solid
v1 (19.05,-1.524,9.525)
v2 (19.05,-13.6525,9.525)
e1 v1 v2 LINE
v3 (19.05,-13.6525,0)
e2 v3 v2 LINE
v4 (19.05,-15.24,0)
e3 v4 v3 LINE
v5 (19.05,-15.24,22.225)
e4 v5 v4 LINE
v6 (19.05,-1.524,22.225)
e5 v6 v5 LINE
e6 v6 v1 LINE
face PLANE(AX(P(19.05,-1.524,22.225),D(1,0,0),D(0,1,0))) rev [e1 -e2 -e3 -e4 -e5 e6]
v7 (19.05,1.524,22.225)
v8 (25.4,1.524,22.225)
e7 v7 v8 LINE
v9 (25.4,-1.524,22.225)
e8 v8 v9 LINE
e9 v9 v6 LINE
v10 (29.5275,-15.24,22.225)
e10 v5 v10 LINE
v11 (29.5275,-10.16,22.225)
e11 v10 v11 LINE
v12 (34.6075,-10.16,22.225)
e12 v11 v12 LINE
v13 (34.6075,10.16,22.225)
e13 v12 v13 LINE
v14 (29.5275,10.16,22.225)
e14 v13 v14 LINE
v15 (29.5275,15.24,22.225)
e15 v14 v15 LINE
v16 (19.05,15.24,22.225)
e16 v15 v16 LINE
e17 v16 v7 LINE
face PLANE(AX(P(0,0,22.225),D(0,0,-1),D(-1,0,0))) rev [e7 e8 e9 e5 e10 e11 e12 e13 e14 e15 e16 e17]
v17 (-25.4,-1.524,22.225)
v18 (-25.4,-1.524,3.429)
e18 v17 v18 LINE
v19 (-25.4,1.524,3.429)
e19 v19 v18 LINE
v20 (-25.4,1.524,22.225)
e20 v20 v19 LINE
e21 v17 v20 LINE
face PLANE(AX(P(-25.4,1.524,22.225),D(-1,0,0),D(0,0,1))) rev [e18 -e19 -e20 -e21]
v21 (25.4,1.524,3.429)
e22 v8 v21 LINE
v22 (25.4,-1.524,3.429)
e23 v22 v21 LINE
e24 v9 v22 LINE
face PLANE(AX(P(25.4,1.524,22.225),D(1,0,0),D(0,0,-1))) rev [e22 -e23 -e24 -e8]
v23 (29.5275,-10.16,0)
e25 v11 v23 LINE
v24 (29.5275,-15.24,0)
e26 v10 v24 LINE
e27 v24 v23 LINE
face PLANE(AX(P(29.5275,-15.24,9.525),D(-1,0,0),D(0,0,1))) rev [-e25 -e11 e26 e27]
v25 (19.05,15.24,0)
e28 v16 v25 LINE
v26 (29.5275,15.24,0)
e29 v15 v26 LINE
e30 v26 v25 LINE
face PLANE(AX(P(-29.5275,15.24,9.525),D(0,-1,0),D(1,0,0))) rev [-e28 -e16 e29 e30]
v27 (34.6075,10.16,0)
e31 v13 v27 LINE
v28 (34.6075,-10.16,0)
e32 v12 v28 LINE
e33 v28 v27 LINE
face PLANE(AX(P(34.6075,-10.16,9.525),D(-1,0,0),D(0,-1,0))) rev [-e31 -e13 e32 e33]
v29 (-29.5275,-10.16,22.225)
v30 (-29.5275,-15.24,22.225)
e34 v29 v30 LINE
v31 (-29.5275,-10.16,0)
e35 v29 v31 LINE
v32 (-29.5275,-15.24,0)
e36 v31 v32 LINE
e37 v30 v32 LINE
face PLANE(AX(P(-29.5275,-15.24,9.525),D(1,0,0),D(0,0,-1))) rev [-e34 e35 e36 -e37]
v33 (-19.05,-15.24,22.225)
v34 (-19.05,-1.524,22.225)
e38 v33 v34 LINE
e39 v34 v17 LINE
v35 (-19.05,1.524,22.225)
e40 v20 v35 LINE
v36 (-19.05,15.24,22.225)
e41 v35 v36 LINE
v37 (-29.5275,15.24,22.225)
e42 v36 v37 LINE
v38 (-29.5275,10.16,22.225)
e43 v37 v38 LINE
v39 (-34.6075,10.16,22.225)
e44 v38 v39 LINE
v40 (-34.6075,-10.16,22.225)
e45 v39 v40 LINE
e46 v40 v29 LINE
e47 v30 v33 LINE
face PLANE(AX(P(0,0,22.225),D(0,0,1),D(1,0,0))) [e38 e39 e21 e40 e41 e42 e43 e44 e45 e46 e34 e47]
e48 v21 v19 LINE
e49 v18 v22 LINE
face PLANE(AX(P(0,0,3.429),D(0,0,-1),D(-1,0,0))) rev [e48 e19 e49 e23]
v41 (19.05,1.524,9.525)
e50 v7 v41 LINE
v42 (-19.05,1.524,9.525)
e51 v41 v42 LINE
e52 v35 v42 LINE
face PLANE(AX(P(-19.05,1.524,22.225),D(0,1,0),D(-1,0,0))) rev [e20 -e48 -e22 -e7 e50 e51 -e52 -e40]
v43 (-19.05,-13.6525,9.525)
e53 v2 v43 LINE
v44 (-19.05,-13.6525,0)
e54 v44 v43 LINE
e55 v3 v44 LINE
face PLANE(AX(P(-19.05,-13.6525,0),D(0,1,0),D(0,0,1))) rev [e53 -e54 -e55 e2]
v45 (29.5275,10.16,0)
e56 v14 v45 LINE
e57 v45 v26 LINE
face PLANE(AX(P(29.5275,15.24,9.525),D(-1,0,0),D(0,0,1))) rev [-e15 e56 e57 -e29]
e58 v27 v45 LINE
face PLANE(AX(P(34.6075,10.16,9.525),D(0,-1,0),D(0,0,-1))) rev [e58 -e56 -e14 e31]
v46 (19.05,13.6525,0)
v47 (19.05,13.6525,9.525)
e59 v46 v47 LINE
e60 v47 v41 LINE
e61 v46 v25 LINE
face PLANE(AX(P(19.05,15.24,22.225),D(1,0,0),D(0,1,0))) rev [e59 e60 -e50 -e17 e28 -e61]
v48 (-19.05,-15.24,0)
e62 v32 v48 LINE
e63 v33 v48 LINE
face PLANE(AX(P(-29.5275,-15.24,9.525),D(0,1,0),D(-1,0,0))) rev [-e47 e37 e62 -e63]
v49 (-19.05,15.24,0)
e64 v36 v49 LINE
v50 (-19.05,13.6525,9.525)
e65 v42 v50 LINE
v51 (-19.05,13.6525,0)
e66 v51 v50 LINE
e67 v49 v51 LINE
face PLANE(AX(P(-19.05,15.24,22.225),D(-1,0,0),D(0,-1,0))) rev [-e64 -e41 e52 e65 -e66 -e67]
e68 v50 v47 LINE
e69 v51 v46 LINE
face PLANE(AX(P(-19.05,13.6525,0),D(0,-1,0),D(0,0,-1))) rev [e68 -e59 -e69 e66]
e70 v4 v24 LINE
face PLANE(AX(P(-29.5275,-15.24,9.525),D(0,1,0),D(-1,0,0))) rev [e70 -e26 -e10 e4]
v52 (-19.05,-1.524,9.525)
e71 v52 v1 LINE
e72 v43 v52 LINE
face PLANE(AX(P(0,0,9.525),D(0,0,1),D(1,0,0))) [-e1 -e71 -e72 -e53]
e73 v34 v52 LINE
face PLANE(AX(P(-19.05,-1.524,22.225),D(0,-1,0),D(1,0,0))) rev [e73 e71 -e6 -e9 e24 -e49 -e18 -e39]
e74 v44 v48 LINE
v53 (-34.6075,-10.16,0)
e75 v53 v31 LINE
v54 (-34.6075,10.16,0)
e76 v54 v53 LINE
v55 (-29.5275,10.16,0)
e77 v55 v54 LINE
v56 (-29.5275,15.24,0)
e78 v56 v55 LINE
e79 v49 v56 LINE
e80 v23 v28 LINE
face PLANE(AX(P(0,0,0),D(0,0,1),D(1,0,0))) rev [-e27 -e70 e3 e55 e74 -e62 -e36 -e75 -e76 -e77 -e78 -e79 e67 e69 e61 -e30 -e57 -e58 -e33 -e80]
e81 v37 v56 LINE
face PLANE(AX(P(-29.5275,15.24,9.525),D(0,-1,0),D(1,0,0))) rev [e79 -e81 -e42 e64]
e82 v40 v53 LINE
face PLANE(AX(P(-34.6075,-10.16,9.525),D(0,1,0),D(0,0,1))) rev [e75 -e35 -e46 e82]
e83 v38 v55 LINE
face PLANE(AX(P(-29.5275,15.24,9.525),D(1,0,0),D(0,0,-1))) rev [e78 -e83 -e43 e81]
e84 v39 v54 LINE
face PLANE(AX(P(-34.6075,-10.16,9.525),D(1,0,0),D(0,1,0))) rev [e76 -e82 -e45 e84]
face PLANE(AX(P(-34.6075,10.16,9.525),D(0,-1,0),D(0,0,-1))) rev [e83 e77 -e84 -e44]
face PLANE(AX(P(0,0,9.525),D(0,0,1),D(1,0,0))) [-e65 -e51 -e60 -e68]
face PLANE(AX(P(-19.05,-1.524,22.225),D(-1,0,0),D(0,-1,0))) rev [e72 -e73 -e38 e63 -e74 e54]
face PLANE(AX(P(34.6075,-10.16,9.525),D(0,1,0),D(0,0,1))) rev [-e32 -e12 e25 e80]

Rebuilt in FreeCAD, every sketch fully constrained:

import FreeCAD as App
import Part
import Sketcher
Q = App.Units.Quantity

doc = App.newDocument("Part")
params = doc.addObject("Spreadsheet::Sheet", "Params")
for row, (alias, value) in enumerate([
    ("sketch1_width", "0.2 in"),
    ("sketch1_height", "0.8 in"),
    ("sketch1_width2", "2.325 in"),
    ("pad1_length", "0.375 in"),
    ("sketch2_width", "0.2 in"),
    ("sketch2_height", "0.8 in"),
    ("sketch2_width2", "0.25 in"),
    ("sketch2_height2", "0.54 in"),
    ("pad2_length", "0.5 in"),
    ("sketch3_width", "2 in"),
    ("sketch3_height", "0.12 in"),
    ("pocket1_length", "0.24 in"),
    ("sketch4_width", "1.5 in"),
    ("sketch4_height", "0.0625 in"),
], start=1):
    params.set(f"A{row}", alias)
    params.set(f"B{row}", "=" + value)
    params.setAlias(f"B{row}", alias)

body = doc.addObject("PartDesign::Body", "Body")

sketch1 = body.newObject("Sketcher::SketchObject", "Sketch")
sketch1.AttachmentSupport = (doc.getObject("XY_Plane"), [""])
sketch1.MapMode = "FlatFace"
sketch1.addGeometry([
    Part.LineSegment(App.Vector(-30, -15, 0), App.Vector(30, -15, 0)),
    Part.LineSegment(App.Vector(30, -15, 0), App.Vector(30, -10, 0)),
    Part.LineSegment(App.Vector(30, -10, 0), App.Vector(35, -10, 0)),
    Part.LineSegment(App.Vector(35, -10, 0), App.Vector(35, 10, 0)),
    Part.LineSegment(App.Vector(35, 10, 0), App.Vector(30, 10, 0)),
    Part.LineSegment(App.Vector(30, 10, 0), App.Vector(30, 15, 0)),
    Part.LineSegment(App.Vector(30, 15, 0), App.Vector(-30, 15, 0)),
    Part.LineSegment(App.Vector(-30, 15, 0), App.Vector(-30, 10, 0)),
    Part.LineSegment(App.Vector(-30, 10, 0), App.Vector(-35, 10, 0)),
    Part.LineSegment(App.Vector(-35, 10, 0), App.Vector(-35, -10, 0)),
    Part.LineSegment(App.Vector(-35, -10, 0), App.Vector(-30, -10, 0)),
    Part.LineSegment(App.Vector(-30, -10, 0), App.Vector(-30, -15, 0)),
], False)
sketch1.addConstraint([
    Sketcher.Constraint("Coincident", 0, 2, 1, 1),
    Sketcher.Constraint("Coincident", 1, 2, 2, 1),
    Sketcher.Constraint("Coincident", 2, 2, 3, 1),
    Sketcher.Constraint("Coincident", 3, 2, 4, 1),
    Sketcher.Constraint("Coincident", 4, 2, 5, 1),
    Sketcher.Constraint("Coincident", 5, 2, 6, 1),
    Sketcher.Constraint("Coincident", 6, 2, 7, 1),
    Sketcher.Constraint("Coincident", 7, 2, 8, 1),
    Sketcher.Constraint("Coincident", 8, 2, 9, 1),
    Sketcher.Constraint("Coincident", 9, 2, 10, 1),
    Sketcher.Constraint("Coincident", 10, 2, 11, 1),
    Sketcher.Constraint("Coincident", 11, 2, 0, 1),
    Sketcher.Constraint("Horizontal", 0),
    Sketcher.Constraint("Vertical", 1),
    Sketcher.Constraint("Horizontal", 2),
    Sketcher.Constraint("Vertical", 3),
    Sketcher.Constraint("Horizontal", 4),
    Sketcher.Constraint("Vertical", 5),
    Sketcher.Constraint("Horizontal", 6),
    Sketcher.Constraint("Vertical", 7),
    Sketcher.Constraint("Horizontal", 8),
    Sketcher.Constraint("Vertical", 9),
    Sketcher.Constraint("Horizontal", 10),
    Sketcher.Constraint("Vertical", 11),
    Sketcher.Constraint("Symmetric", 0, 2, 6, 2, -1, 1),
    Sketcher.Constraint("Symmetric", 2, 2, 8, 2, -1, 1),
    Sketcher.Constraint("Symmetric", 4, 2, 10, 2, -1, 1),
    Sketcher.Constraint("Symmetric", 4, 2, 7, 2, -2),
    Sketcher.Constraint("Equal", 10, 1),
    Sketcher.Constraint("DistanceX", 2, 1, 2, 2, Q("0.2 in")),
    Sketcher.Constraint("DistanceY", 3, 1, 3, 2, Q("0.8 in")),
    Sketcher.Constraint("DistanceX", 0, 1, 0, 2, Q("2.325 in")),
])
sketch1.setExpression("Constraints[29]", "Params.sketch1_width")
sketch1.setExpression("Constraints[30]", "Params.sketch1_height")
sketch1.setExpression("Constraints[31]", "Params.sketch1_width2")
pad1 = body.newObject("PartDesign::Pad", "Pad")
pad1.Profile = sketch1
pad1.setExpression("Length", "Params.pad1_length")

sketch2 = body.newObject("Sketcher::SketchObject", "Sketch001")
sketch2.AttachmentSupport = (doc.getObject("XY_Plane"), [""])
sketch2.MapMode = "FlatFace"
sketch2.AttachmentOffset = App.Placement(App.Vector(0, 0, 0.375 * 25.4), App.Rotation())
sketch2.addGeometry([
    Part.LineSegment(App.Vector(-19.1, 15.2, 0), App.Vector(-29.5, 15.2, 0)),
    Part.LineSegment(App.Vector(-29.5, 15.2, 0), App.Vector(-29.5, 10.2, 0)),
    Part.LineSegment(App.Vector(-29.5, 10.2, 0), App.Vector(-34.6, 10.2, 0)),
    Part.LineSegment(App.Vector(-34.6, 10.2, 0), App.Vector(-34.6, -10.2, 0)),
    Part.LineSegment(App.Vector(-34.6, -10.2, 0), App.Vector(-29.5, -10.2, 0)),
    Part.LineSegment(App.Vector(-29.5, -10.2, 0), App.Vector(-29.5, -15.2, 0)),
    Part.LineSegment(App.Vector(-29.5, -15.2, 0), App.Vector(-19.1, -15.2, 0)),
    Part.LineSegment(App.Vector(-19.1, -15.2, 0), App.Vector(-19.1, -1.5, 0)),
    Part.LineSegment(App.Vector(-19.1, -1.5, 0), App.Vector(-25.4, -1.5, 0)),
    Part.LineSegment(App.Vector(-25.4, -1.5, 0), App.Vector(-25.4, 1.5, 0)),
    Part.LineSegment(App.Vector(-25.4, 1.5, 0), App.Vector(-19.1, 1.5, 0)),
    Part.LineSegment(App.Vector(-19.1, 1.5, 0), App.Vector(-19.1, 15.2, 0)),
    Part.LineSegment(App.Vector(19.1, -1.5, 0), App.Vector(19.1, -15.2, 0)),
    Part.LineSegment(App.Vector(19.1, -15.2, 0), App.Vector(29.5, -15.2, 0)),
    Part.LineSegment(App.Vector(29.5, -15.2, 0), App.Vector(29.5, -10.2, 0)),
    Part.LineSegment(App.Vector(29.5, -10.2, 0), App.Vector(34.6, -10.2, 0)),
    Part.LineSegment(App.Vector(34.6, -10.2, 0), App.Vector(34.6, 10.2, 0)),
    Part.LineSegment(App.Vector(34.6, 10.2, 0), App.Vector(29.5, 10.2, 0)),
    Part.LineSegment(App.Vector(29.5, 10.2, 0), App.Vector(29.5, 15.2, 0)),
    Part.LineSegment(App.Vector(29.5, 15.2, 0), App.Vector(19.1, 15.2, 0)),
    Part.LineSegment(App.Vector(19.1, 15.2, 0), App.Vector(19.1, 1.5, 0)),
    Part.LineSegment(App.Vector(19.1, 1.5, 0), App.Vector(25.4, 1.5, 0)),
    Part.LineSegment(App.Vector(25.4, 1.5, 0), App.Vector(25.4, -1.5, 0)),
    Part.LineSegment(App.Vector(25.4, -1.5, 0), App.Vector(19.1, -1.5, 0)),
], False)
sketch2.addConstraint([
    Sketcher.Constraint("Coincident", 0, 2, 1, 1),
    Sketcher.Constraint("Coincident", 1, 2, 2, 1),
    Sketcher.Constraint("Coincident", 2, 2, 3, 1),
    Sketcher.Constraint("Coincident", 3, 2, 4, 1),
    Sketcher.Constraint("Coincident", 4, 2, 5, 1),
    Sketcher.Constraint("Coincident", 5, 2, 6, 1),
    Sketcher.Constraint("Coincident", 6, 2, 7, 1),
    Sketcher.Constraint("Coincident", 7, 2, 8, 1),
    Sketcher.Constraint("Coincident", 8, 2, 9, 1),
    Sketcher.Constraint("Coincident", 9, 2, 10, 1),
    Sketcher.Constraint("Coincident", 10, 2, 11, 1),
    Sketcher.Constraint("Coincident", 11, 2, 0, 1),
    Sketcher.Constraint("Coincident", 12, 2, 13, 1),
    Sketcher.Constraint("Coincident", 13, 2, 14, 1),
    Sketcher.Constraint("Coincident", 14, 2, 15, 1),
    Sketcher.Constraint("Coincident", 15, 2, 16, 1),
    Sketcher.Constraint("Coincident", 16, 2, 17, 1),
    Sketcher.Constraint("Coincident", 17, 2, 18, 1),
    Sketcher.Constraint("Coincident", 18, 2, 19, 1),
    Sketcher.Constraint("Coincident", 19, 2, 20, 1),
    Sketcher.Constraint("Coincident", 20, 2, 21, 1),
    Sketcher.Constraint("Coincident", 21, 2, 22, 1),
    Sketcher.Constraint("Coincident", 22, 2, 23, 1),
    Sketcher.Constraint("Coincident", 23, 2, 12, 1),
    Sketcher.Constraint("Horizontal", 0),
    Sketcher.Constraint("Vertical", 1),
    Sketcher.Constraint("Horizontal", 2),
    Sketcher.Constraint("Vertical", 3),
    Sketcher.Constraint("Horizontal", 4),
    Sketcher.Constraint("Vertical", 5),
    Sketcher.Constraint("Horizontal", 6),
    Sketcher.Constraint("Vertical", 7),
    Sketcher.Constraint("Horizontal", 8),
    Sketcher.Constraint("Vertical", 9),
    Sketcher.Constraint("Horizontal", 10),
    Sketcher.Constraint("Vertical", 11),
    Sketcher.Constraint("Vertical", 12),
    Sketcher.Constraint("Horizontal", 13),
    Sketcher.Constraint("Vertical", 14),
    Sketcher.Constraint("Horizontal", 15),
    Sketcher.Constraint("Vertical", 16),
    Sketcher.Constraint("Horizontal", 17),
    Sketcher.Constraint("Vertical", 18),
    Sketcher.Constraint("Horizontal", 19),
    Sketcher.Constraint("Vertical", 20),
    Sketcher.Constraint("Horizontal", 21),
    Sketcher.Constraint("Vertical", 22),
    Sketcher.Constraint("Horizontal", 23),
    Sketcher.Constraint("Symmetric", 11, 2, 12, 2, -1, 1),
    Sketcher.Constraint("Symmetric", 1, 2, 14, 2, -1, 1),
    Sketcher.Constraint("Symmetric", 3, 2, 16, 2, -1, 1),
    Sketcher.Constraint("Symmetric", 5, 2, 18, 2, -1, 1),
    Sketcher.Constraint("Symmetric", 7, 2, 20, 2, -1, 1),
    Sketcher.Constraint("Symmetric", 9, 2, 22, 2, -1, 1),
    Sketcher.Constraint("Symmetric", 6, 2, 12, 2, -2),
    Sketcher.Constraint("Symmetric", 4, 2, 14, 2, -2),
    Sketcher.Constraint("Horizontal", 10, 2, 20, 2),
    Sketcher.Constraint("Equal", 17, 1),
    Sketcher.Constraint("DistanceX", 2, 2, 2, 1, Q("0.2 in")),
    Sketcher.Constraint("DistanceY", 3, 2, 3, 1, Q("0.8 in")),
    Sketcher.Constraint("DistanceX", 8, 2, -1, 1, Q("1 in")),
    Sketcher.Constraint("DistanceX", 8, 2, 8, 1, Q("0.25 in")),
    Sketcher.Constraint("DistanceY", 7, 1, 7, 2, Q("0.54 in")),
    Sketcher.Constraint("DistanceX", 0, 2, 0, 1, Q("0.4125 in")),
])
sketch2.setExpression("Constraints[58]", "Params.sketch2_width")
sketch2.setExpression("Constraints[59]", "Params.sketch2_height")
sketch2.setExpression("Constraints[61]", "Params.sketch2_width2")
sketch2.setExpression("Constraints[62]", "Params.sketch2_height2")
pad2 = body.newObject("PartDesign::Pad", "Pad001")
pad2.Profile = sketch2
pad2.setExpression("Length", "Params.pad2_length")

sketch3 = body.newObject("Sketcher::SketchObject", "Sketch002")
sketch3.AttachmentSupport = (doc.getObject("XY_Plane"), [""])
sketch3.MapMode = "FlatFace"
sketch3.AttachmentOffset = App.Placement(App.Vector(0, 0, 0.375 * 25.4), App.Rotation())
sketch3.addGeometry([
    Part.LineSegment(App.Vector(-25.4, 1.5, 0), App.Vector(-25.4, -1.5, 0)),
    Part.LineSegment(App.Vector(-25.4, -1.5, 0), App.Vector(25.4, -1.5, 0)),
    Part.LineSegment(App.Vector(25.4, -1.5, 0), App.Vector(25.4, 1.5, 0)),
    Part.LineSegment(App.Vector(25.4, 1.5, 0), App.Vector(-25.4, 1.5, 0)),
], False)
sketch3.addConstraint([
    Sketcher.Constraint("Coincident", 0, 2, 1, 1),
    Sketcher.Constraint("Coincident", 1, 2, 2, 1),
    Sketcher.Constraint("Coincident", 2, 2, 3, 1),
    Sketcher.Constraint("Coincident", 3, 2, 0, 1),
    Sketcher.Constraint("Vertical", 0),
    Sketcher.Constraint("Horizontal", 1),
    Sketcher.Constraint("Vertical", 2),
    Sketcher.Constraint("Horizontal", 3),
    Sketcher.Constraint("Symmetric", 0, 2, 2, 2, -1, 1),
    Sketcher.Constraint("DistanceX", 1, 1, 1, 2, Q("2 in")),
    Sketcher.Constraint("DistanceY", 0, 2, 0, 1, Q("0.12 in")),
])
sketch3.setExpression("Constraints[9]", "Params.sketch3_width")
sketch3.setExpression("Constraints[10]", "Params.sketch3_height")
pocket1 = body.newObject("PartDesign::Pocket", "Pocket")
pocket1.Profile = sketch3
pocket1.setExpression("Length", "Params.pocket1_length")

sketch4 = body.newObject("Sketcher::SketchObject", "Sketch003")
sketch4.AttachmentSupport = (doc.getObject("XY_Plane"), [""])
sketch4.MapMode = "FlatFace"
sketch4.AttachmentOffset = App.Placement(App.Vector(0, 0, 0.375 * 25.4), App.Rotation())
sketch4.addGeometry([
    Part.LineSegment(App.Vector(-19.1, 15.2, 0), App.Vector(-19.1, 13.7, 0)),
    Part.LineSegment(App.Vector(-19.1, 13.7, 0), App.Vector(19.1, 13.7, 0)),
    Part.LineSegment(App.Vector(19.1, 13.7, 0), App.Vector(19.1, 15.2, 0)),
    Part.LineSegment(App.Vector(19.1, 15.2, 0), App.Vector(-19.1, 15.2, 0)),
    Part.LineSegment(App.Vector(-19.1, -13.7, 0), App.Vector(-19.1, -15.2, 0)),
    Part.LineSegment(App.Vector(-19.1, -15.2, 0), App.Vector(19.1, -15.2, 0)),
    Part.LineSegment(App.Vector(19.1, -15.2, 0), App.Vector(19.1, -13.7, 0)),
    Part.LineSegment(App.Vector(19.1, -13.7, 0), App.Vector(-19.1, -13.7, 0)),
], False)
sketch4.addConstraint([
    Sketcher.Constraint("Coincident", 0, 2, 1, 1),
    Sketcher.Constraint("Coincident", 1, 2, 2, 1),
    Sketcher.Constraint("Coincident", 2, 2, 3, 1),
    Sketcher.Constraint("Coincident", 3, 2, 0, 1),
    Sketcher.Constraint("Coincident", 4, 2, 5, 1),
    Sketcher.Constraint("Coincident", 5, 2, 6, 1),
    Sketcher.Constraint("Coincident", 6, 2, 7, 1),
    Sketcher.Constraint("Coincident", 7, 2, 4, 1),
    Sketcher.Constraint("Vertical", 0),
    Sketcher.Constraint("Horizontal", 1),
    Sketcher.Constraint("Vertical", 2),
    Sketcher.Constraint("Horizontal", 3),
    Sketcher.Constraint("Vertical", 4),
    Sketcher.Constraint("Horizontal", 5),
    Sketcher.Constraint("Vertical", 6),
    Sketcher.Constraint("Horizontal", 7),
    Sketcher.Constraint("Symmetric", 2, 2, 4, 2, -1, 1),
    Sketcher.Constraint("Symmetric", 0, 2, 6, 2, -1, 1),
    Sketcher.Constraint("Vertical", 3, 2, 4, 2),
    Sketcher.Constraint("DistanceX", 1, 1, 1, 2, Q("1.5 in")),
    Sketcher.Constraint("DistanceY", -1, 1, 2, 2, Q("0.6 in")),
    Sketcher.Constraint("DistanceY", 0, 2, 0, 1, Q("0.0625 in")),
])
sketch4.setExpression("Constraints[19]", "Params.sketch4_width")
sketch4.setExpression("Constraints[21]", "Params.sketch4_height")
pocket2 = body.newObject("PartDesign::Pocket", "Pocket001")
pocket2.Profile = sketch4
pocket2.Type = "ThroughAll"
pocket2.Midplane = True

doc.recompute()
